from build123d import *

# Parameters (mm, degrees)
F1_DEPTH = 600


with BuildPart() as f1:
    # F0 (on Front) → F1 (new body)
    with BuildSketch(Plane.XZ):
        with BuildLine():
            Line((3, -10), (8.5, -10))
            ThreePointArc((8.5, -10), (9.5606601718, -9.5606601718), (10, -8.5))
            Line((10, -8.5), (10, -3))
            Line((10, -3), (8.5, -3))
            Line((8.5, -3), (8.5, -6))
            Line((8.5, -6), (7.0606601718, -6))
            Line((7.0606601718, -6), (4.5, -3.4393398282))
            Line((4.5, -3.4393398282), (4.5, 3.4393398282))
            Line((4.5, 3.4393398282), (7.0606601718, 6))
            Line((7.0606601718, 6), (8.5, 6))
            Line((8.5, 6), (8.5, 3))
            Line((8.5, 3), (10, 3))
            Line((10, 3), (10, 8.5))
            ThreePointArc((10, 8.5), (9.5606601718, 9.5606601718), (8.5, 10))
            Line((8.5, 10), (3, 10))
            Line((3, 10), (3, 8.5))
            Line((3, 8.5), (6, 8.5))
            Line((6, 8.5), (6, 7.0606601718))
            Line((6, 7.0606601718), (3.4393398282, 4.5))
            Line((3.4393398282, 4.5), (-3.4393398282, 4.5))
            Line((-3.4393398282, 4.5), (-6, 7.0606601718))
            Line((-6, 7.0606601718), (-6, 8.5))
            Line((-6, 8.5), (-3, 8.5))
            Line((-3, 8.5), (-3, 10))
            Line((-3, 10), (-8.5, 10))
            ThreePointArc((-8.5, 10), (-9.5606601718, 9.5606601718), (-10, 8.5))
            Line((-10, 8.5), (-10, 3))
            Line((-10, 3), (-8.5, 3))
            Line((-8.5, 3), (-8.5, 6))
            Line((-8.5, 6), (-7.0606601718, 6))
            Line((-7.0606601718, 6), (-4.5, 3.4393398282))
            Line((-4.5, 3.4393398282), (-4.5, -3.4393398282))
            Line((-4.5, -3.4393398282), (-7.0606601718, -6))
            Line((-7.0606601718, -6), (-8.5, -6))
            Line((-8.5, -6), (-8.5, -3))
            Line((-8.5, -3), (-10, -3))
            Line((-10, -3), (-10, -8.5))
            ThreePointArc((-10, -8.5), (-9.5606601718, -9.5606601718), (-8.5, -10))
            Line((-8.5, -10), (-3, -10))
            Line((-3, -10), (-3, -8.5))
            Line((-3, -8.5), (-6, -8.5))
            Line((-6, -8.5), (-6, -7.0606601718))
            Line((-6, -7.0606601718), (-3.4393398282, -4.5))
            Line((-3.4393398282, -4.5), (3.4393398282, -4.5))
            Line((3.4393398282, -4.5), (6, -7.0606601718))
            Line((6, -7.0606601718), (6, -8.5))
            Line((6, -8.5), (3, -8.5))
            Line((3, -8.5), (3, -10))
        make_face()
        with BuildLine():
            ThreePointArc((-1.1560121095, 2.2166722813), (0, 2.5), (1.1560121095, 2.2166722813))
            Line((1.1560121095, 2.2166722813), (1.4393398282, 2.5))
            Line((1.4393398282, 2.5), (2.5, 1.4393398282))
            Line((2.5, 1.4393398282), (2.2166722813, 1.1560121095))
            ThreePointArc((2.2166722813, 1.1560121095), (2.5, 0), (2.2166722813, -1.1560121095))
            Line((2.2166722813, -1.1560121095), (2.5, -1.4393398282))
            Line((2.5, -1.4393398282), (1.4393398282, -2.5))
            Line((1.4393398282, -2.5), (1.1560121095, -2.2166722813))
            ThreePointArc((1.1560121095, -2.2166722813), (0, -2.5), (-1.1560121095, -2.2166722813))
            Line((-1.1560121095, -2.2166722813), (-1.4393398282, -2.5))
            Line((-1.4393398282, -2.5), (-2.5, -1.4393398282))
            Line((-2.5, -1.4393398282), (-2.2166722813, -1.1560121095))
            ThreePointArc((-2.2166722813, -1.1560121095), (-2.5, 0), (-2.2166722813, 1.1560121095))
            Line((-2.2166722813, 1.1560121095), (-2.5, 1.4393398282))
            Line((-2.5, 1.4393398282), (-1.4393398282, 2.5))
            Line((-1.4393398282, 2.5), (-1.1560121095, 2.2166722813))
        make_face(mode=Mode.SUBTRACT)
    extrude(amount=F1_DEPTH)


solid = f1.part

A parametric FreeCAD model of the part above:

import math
import FreeCAD as App
import Part
import Sketcher
Q = App.Units.Quantity

doc = App.newDocument("Part")
body = doc.addObject("PartDesign::Body", "Body")

# Sketch on XZ plane
sketch1 = body.newObject("Sketcher::SketchObject", "Sketch")
sketch1.AttachmentSupport = (doc.getObject("XZ_Plane"), [""])
sketch1.MapMode = "FlatFace"
sketch1.addGeometry([
    Part.LineSegment(App.Vector(3, -10, 0), App.Vector(8.5, -10, 0)),  # 0
    Part.ArcOfCircle(Part.Circle(App.Vector(8.5, -8.5, 0), App.Vector(0, 0, 1), 1.5), math.radians(-90), math.radians(0)),  # 1
    Part.LineSegment(App.Vector(10, -8.5, 0), App.Vector(10, -3, 0)),  # 2
    Part.LineSegment(App.Vector(10, -3, 0), App.Vector(8.5, -3, 0)),  # 3
    Part.LineSegment(App.Vector(8.5, -3, 0), App.Vector(8.5, -6, 0)),  # 4
    Part.LineSegment(App.Vector(8.5, -6, 0), App.Vector(7.06, -6, 0)),  # 5
    Part.LineSegment(App.Vector(7.06, -6, 0), App.Vector(4.5, -3.44, 0)),  # 6
    Part.LineSegment(App.Vector(4.5, -3.44, 0), App.Vector(4.5, 3.44, 0)),  # 7
    Part.LineSegment(App.Vector(4.5, 3.44, 0), App.Vector(7.06, 6, 0)),  # 8
    Part.LineSegment(App.Vector(7.06, 6, 0), App.Vector(8.5, 6, 0)),  # 9
    Part.LineSegment(App.Vector(8.5, 6, 0), App.Vector(8.5, 3, 0)),  # 10
    Part.LineSegment(App.Vector(8.5, 3, 0), App.Vector(10, 3, 0)),  # 11
    Part.LineSegment(App.Vector(10, 3, 0), App.Vector(10, 8.5, 0)),  # 12
    Part.ArcOfCircle(Part.Circle(App.Vector(8.5, 8.5, 0), App.Vector(0, 0, 1), 1.5), math.radians(0), math.radians(90)),  # 13
    Part.LineSegment(App.Vector(8.5, 10, 0), App.Vector(3, 10, 0)),  # 14
    Part.LineSegment(App.Vector(3, 10, 0), App.Vector(3, 8.5, 0)),  # 15
    Part.LineSegment(App.Vector(3, 8.5, 0), App.Vector(6, 8.5, 0)),  # 16
    Part.LineSegment(App.Vector(6, 8.5, 0), App.Vector(6, 7.06, 0)),  # 17
    Part.LineSegment(App.Vector(6, 7.06, 0), App.Vector(3.44, 4.5, 0)),  # 18
    Part.LineSegment(App.Vector(3.44, 4.5, 0), App.Vector(-3.44, 4.5, 0)),  # 19
    Part.LineSegment(App.Vector(-3.44, 4.5, 0), App.Vector(-6, 7.06, 0)),  # 20
    Part.LineSegment(App.Vector(-6, 7.06, 0), App.Vector(-6, 8.5, 0)),  # 21
    Part.LineSegment(App.Vector(-6, 8.5, 0), App.Vector(-3, 8.5, 0)),  # 22
    Part.LineSegment(App.Vector(-3, 8.5, 0), App.Vector(-3, 10, 0)),  # 23
    Part.LineSegment(App.Vector(-3, 10, 0), App.Vector(-8.5, 10, 0)),  # 24
    Part.ArcOfCircle(Part.Circle(App.Vector(-8.5, 8.5, 0), App.Vector(0, 0, 1), 1.5), math.radians(90), math.radians(180)),  # 25
    Part.LineSegment(App.Vector(-10, 8.5, 0), App.Vector(-10, 3, 0)),  # 26
    Part.LineSegment(App.Vector(-10, 3, 0), App.Vector(-8.5, 3, 0)),  # 27
    Part.LineSegment(App.Vector(-8.5, 3, 0), App.Vector(-8.5, 6, 0)),  # 28
    Part.LineSegment(App.Vector(-8.5, 6, 0), App.Vector(-7.06, 6, 0)),  # 29
    Part.LineSegment(App.Vector(-7.06, 6, 0), App.Vector(-4.5, 3.44, 0)),  # 30
    Part.LineSegment(App.Vector(-4.5, 3.44, 0), App.Vector(-4.5, -3.44, 0)),  # 31
    Part.LineSegment(App.Vector(-4.5, -3.44, 0), App.Vector(-7.06, -6, 0)),  # 32
    Part.LineSegment(App.Vector(-7.06, -6, 0), App.Vector(-8.5, -6, 0)),  # 33
    Part.LineSegment(App.Vector(-8.5, -6, 0), App.Vector(-8.5, -3, 0)),  # 34
    Part.LineSegment(App.Vector(-8.5, -3, 0), App.Vector(-10, -3, 0)),  # 35
    Part.LineSegment(App.Vector(-10, -3, 0), App.Vector(-10, -8.5, 0)),  # 36
    Part.ArcOfCircle(Part.Circle(App.Vector(-8.5, -8.5, 0), App.Vector(0, 0, 1), 1.5), math.radians(180), math.radians(270)),  # 37
    Part.LineSegment(App.Vector(-8.5, -10, 0), App.Vector(-3, -10, 0)),  # 38
    Part.LineSegment(App.Vector(-3, -10, 0), App.Vector(-3, -8.5, 0)),  # 39
    Part.LineSegment(App.Vector(-3, -8.5, 0), App.Vector(-6, -8.5, 0)),  # 40
    Part.LineSegment(App.Vector(-6, -8.5, 0), App.Vector(-6, -7.06, 0)),  # 41
    Part.LineSegment(App.Vector(-6, -7.06, 0), App.Vector(-3.44, -4.5, 0)),  # 42
    Part.LineSegment(App.Vector(-3.44, -4.5, 0), App.Vector(3.44, -4.5, 0)),  # 43
    Part.LineSegment(App.Vector(3.44, -4.5, 0), App.Vector(6, -7.06, 0)),  # 44
    Part.LineSegment(App.Vector(6, -7.06, 0), App.Vector(6, -8.5, 0)),  # 45
    Part.LineSegment(App.Vector(6, -8.5, 0), App.Vector(3, -8.5, 0)),  # 46
    Part.LineSegment(App.Vector(3, -8.5, 0), App.Vector(3, -10, 0)),  # 47
    Part.LineSegment(App.Vector(-1.44, 2.5, 0), App.Vector(-1.16, 2.22, 0)),  # 48
    Part.ArcOfCircle(Part.Circle(App.Vector(0, 0, 0), App.Vector(0, 0, 1), 2.5), math.radians(62), math.radians(118)),  # 49
    Part.LineSegment(App.Vector(1.16, 2.22, 0), App.Vector(1.44, 2.5, 0)),  # 50
    Part.LineSegment(App.Vector(1.44, 2.5, 0), App.Vector(2.5, 1.44, 0)),  # 51
    Part.LineSegment(App.Vector(2.5, 1.44, 0), App.Vector(2.22, 1.16, 0)),  # 52
    Part.ArcOfCircle(Part.Circle(App.Vector(0, 0, 0), App.Vector(0, 0, 1), 2.5), math.radians(-28), math.radians(28)),  # 53
    Part.LineSegment(App.Vector(2.22, -1.16, 0), App.Vector(2.5, -1.44, 0)),  # 54
    Part.LineSegment(App.Vector(2.5, -1.44, 0), App.Vector(1.44, -2.5, 0)),  # 55
    Part.LineSegment(App.Vector(1.44, -2.5, 0), App.Vector(1.16, -2.22, 0)),  # 56
    Part.ArcOfCircle(Part.Circle(App.Vector(0, 0, 0), App.Vector(0, 0, 1), 2.5), math.radians(-118), math.radians(-62)),  # 57
    Part.LineSegment(App.Vector(-1.16, -2.22, 0), App.Vector(-1.44, -2.5, 0)),  # 58
    Part.LineSegment(App.Vector(-1.44, -2.5, 0), App.Vector(-2.5, -1.44, 0)),  # 59
    Part.LineSegment(App.Vector(-2.5, -1.44, 0), App.Vector(-2.22, -1.16, 0)),  # 60
    Part.ArcOfCircle(Part.Circle(App.Vector(0, 0, 0), App.Vector(0, 0, 1), 2.5), math.radians(152), math.radians(208)),  # 61
    Part.LineSegment(App.Vector(-2.22, 1.16, 0), App.Vector(-2.5, 1.44, 0)),  # 62
    Part.LineSegment(App.Vector(-2.5, 1.44, 0), App.Vector(-1.44, 2.5, 0)),  # 63
], False)
sketch1.addConstraint([
    Sketcher.Constraint("Tangent", 0, 2, 1, 1),
    Sketcher.Constraint("Tangent", 1, 2, 2, 1),
    Sketcher.Constraint("Coincident", 2, 2, 3, 1),
    Sketcher.Constraint("Coincident", 3, 2, 4, 1),
    Sketcher.Constraint("Coincident", 4, 2, 5, 1),
    Sketcher.Constraint("Coincident", 5, 2, 6, 1),
    Sketcher.Constraint("Coincident", 6, 2, 7, 1),
    Sketcher.Constraint("Coincident", 7, 2, 8, 1),
    Sketcher.Constraint("Coincident", 8, 2, 9, 1),
    Sketcher.Constraint("Coincident", 9, 2, 10, 1),
    Sketcher.Constraint("Coincident", 10, 2, 11, 1),
    Sketcher.Constraint("Coincident", 11, 2, 12, 1),
    Sketcher.Constraint("Tangent", 12, 2, 13, 1),
    Sketcher.Constraint("Tangent", 13, 2, 14, 1),
    Sketcher.Constraint("Coincident", 14, 2, 15, 1),
    Sketcher.Constraint("Coincident", 15, 2, 16, 1),
    Sketcher.Constraint("Coincident", 16, 2, 17, 1),
    Sketcher.Constraint("Coincident", 17, 2, 18, 1),
    Sketcher.Constraint("Coincident", 18, 2, 19, 1),
    Sketcher.Constraint("Coincident", 19, 2, 20, 1),
    Sketcher.Constraint("Coincident", 20, 2, 21, 1),
    Sketcher.Constraint("Coincident", 21, 2, 22, 1),
    Sketcher.Constraint("Coincident", 22, 2, 23, 1),
    Sketcher.Constraint("Coincident", 23, 2, 24, 1),
    Sketcher.Constraint("Tangent", 24, 2, 25, 1),
    Sketcher.Constraint("Tangent", 25, 2, 26, 1),
    Sketcher.Constraint("Coincident", 26, 2, 27, 1),
    Sketcher.Constraint("Coincident", 27, 2, 28, 1),
    Sketcher.Constraint("Coincident", 28, 2, 29, 1),
    Sketcher.Constraint("Coincident", 29, 2, 30, 1),
    Sketcher.Constraint("Coincident", 30, 2, 31, 1),
    Sketcher.Constraint("Coincident", 31, 2, 32, 1),
    Sketcher.Constraint("Coincident", 32, 2, 33, 1),
    Sketcher.Constraint("Coincident", 33, 2, 34, 1),
    Sketcher.Constraint("Coincident", 34, 2, 35, 1),
    Sketcher.Constraint("Coincident", 35, 2, 36, 1),
    Sketcher.Constraint("Tangent", 36, 2, 37, 1),
    Sketcher.Constraint("Tangent", 37, 2, 38, 1),
    Sketcher.Constraint("Coincident", 38, 2, 39, 1),
    Sketcher.Constraint("Coincident", 39, 2, 40, 1),
    Sketcher.Constraint("Coincident", 40, 2, 41, 1),
    Sketcher.Constraint("Coincident", 41, 2, 42, 1),
    Sketcher.Constraint("Coincident", 42, 2, 43, 1),
    Sketcher.Constraint("Coincident", 43, 2, 44, 1),
    Sketcher.Constraint("Coincident", 44, 2, 45, 1),
    Sketcher.Constraint("Coincident", 45, 2, 46, 1),
    Sketcher.Constraint("Coincident", 46, 2, 47, 1),
    Sketcher.Constraint("Coincident", 47, 2, 0, 1),
    Sketcher.Constraint("Coincident", 48, 2, 49, 2),
    Sketcher.Constraint("Coincident", 49, 1, 50, 1),
    Sketcher.Constraint("Coincident", 50, 2, 51, 1),
    Sketcher.Constraint("Coincident", 51, 2, 52, 1),
    Sketcher.Constraint("Coincident", 52, 2, 53, 2),
    Sketcher.Constraint("Coincident", 53, 1, 54, 1),
    Sketcher.Constraint("Coincident", 54, 2, 55, 1),
    Sketcher.Constraint("Coincident", 55, 2, 56, 1),
    Sketcher.Constraint("Coincident", 56, 2, 57, 2),
    Sketcher.Constraint("Coincident", 57, 1, 58, 1),
    Sketcher.Constraint("Coincident", 58, 2, 59, 1),
    Sketcher.Constraint("Coincident", 59, 2, 60, 1),
    Sketcher.Constraint("Coincident", 60, 2, 61, 2),
    Sketcher.Constraint("Coincident", 61, 1, 62, 1),
    Sketcher.Constraint("Coincident", 62, 2, 63, 1),
    Sketcher.Constraint("Coincident", 63, 2, 48, 1),
    Sketcher.Constraint("Horizontal", 0),
    Sketcher.Constraint("Vertical", 2),
    Sketcher.Constraint("Horizontal", 3),
    Sketcher.Constraint("Vertical", 4),
    Sketcher.Constraint("Horizontal", 5),
    Sketcher.Constraint("Vertical", 7),
    Sketcher.Constraint("Horizontal", 9),
    Sketcher.Constraint("Vertical", 10),
    Sketcher.Constraint("Horizontal", 11),
    Sketcher.Constraint("Vertical", 12),
    Sketcher.Constraint("Horizontal", 14),
    Sketcher.Constraint("Vertical", 15),
    Sketcher.Constraint("Horizontal", 16),
    Sketcher.Constraint("Vertical", 17),
    Sketcher.Constraint("Horizontal", 19),
    Sketcher.Constraint("Vertical", 21),
    Sketcher.Constraint("Horizontal", 22),
    Sketcher.Constraint("Vertical", 23),
    Sketcher.Constraint("Horizontal", 24),
    Sketcher.Constraint("Vertical", 26),
    Sketcher.Constraint("Horizontal", 27),
    Sketcher.Constraint("Vertical", 28),
    Sketcher.Constraint("Horizontal", 29),
    Sketcher.Constraint("Vertical", 31),
    Sketcher.Constraint("Horizontal", 33),
    Sketcher.Constraint("Vertical", 34),
    Sketcher.Constraint("Horizontal", 35),
    Sketcher.Constraint("Vertical", 36),
    Sketcher.Constraint("Horizontal", 38),
    Sketcher.Constraint("Vertical", 39),
    Sketcher.Constraint("Horizontal", 40),
    Sketcher.Constraint("Vertical", 41),
    Sketcher.Constraint("Horizontal", 43),
    Sketcher.Constraint("Vertical", 45),
    Sketcher.Constraint("Horizontal", 46),
    Sketcher.Constraint("Vertical", 47),
    Sketcher.Constraint("Coincident", 49, 3, -1, 1),
    Sketcher.Constraint("Coincident", 53, 3, -1, 1),
    Sketcher.Constraint("Coincident", 57, 3, -1, 1),
    Sketcher.Constraint("Coincident", 61, 3, -1, 1),
    Sketcher.Constraint("Equal", 1, 13),
    Sketcher.Constraint("Equal", 13, 25),
    Sketcher.Constraint("Equal", 25, 37),
    Sketcher.Constraint("Equal", 49, 53),
    Sketcher.Constraint("Equal", 53, 57),
    Sketcher.Constraint("Equal", 57, 61),
    Sketcher.Constraint("Symmetric", 1, 3, 25, 3, -1, 1),
    Sketcher.Constraint("Symmetric", 13, 3, 37, 3, -1, 1),
    Sketcher.Constraint("Symmetric", 3, 2, 27, 2, -1, 1),
    Sketcher.Constraint("Symmetric", 5, 2, 29, 2, -1, 1),
    Sketcher.Constraint("Symmetric", 6, 2, 30, 2, -1, 1),
    Sketcher.Constraint("Symmetric", 8, 2, 32, 2, -1, 1),
    Sketcher.Constraint("Symmetric", 10, 2, 34, 2, -1, 1),
    Sketcher.Constraint("Symmetric", 15, 2, 39, 2, -1, 1),
    Sketcher.Constraint("Symmetric", 17, 2, 41, 2, -1, 1),
    Sketcher.Constraint("Symmetric", 18, 2, 42, 2, -1, 1),
    Sketcher.Constraint("Symmetric", 20, 2, 44, 2, -1, 1),
    Sketcher.Constraint("Symmetric", 22, 2, 46, 2, -1, 1),
    Sketcher.Constraint("Symmetric", 50, 2, 58, 2, -1, 1),
    Sketcher.Constraint("Symmetric", 51, 2, 59, 2, -1, 1),
    Sketcher.Constraint("Symmetric", 54, 2, 62, 2, -1, 1),
    Sketcher.Constraint("Symmetric", 55, 2, 63, 2, -1, 1),
    Sketcher.Constraint("Symmetric", 13, 3, 25, 3, -2),
    Sketcher.Constraint("Symmetric", 17, 2, 20, 2, -2),
    Sketcher.Constraint("Symmetric", 15, 2, 22, 2, -2),
    Sketcher.Constraint("Symmetric", 10, 2, 27, 2, -2),
    Sketcher.Constraint("Symmetric", 8, 2, 29, 2, -2),
    Sketcher.Constraint("Symmetric", 55, 2, 58, 2, -2),
    Sketcher.Constraint("Symmetric", 54, 2, 59, 2, -2),
    Sketcher.Constraint("Perpendicular", 6, 8),
    Sketcher.Constraint("Parallel", 8, 18),
    Sketcher.Constraint("Perpendicular", 18, 20),
    Sketcher.Constraint("Perpendicular", 30, 32),
    Sketcher.Constraint("Perpendicular", 42, 44),
    Sketcher.Constraint("Parallel", 44, 48),
    Sketcher.Constraint("Perpendicular", 48, 50),
    Sketcher.Constraint("Perpendicular", 50, 51),
    Sketcher.Constraint("Perpendicular", 51, 52),
    Sketcher.Constraint("Perpendicular", 52, 54),
    Sketcher.Constraint("Perpendicular", 54, 55),
    Sketcher.Constraint("Perpendicular", 55, 56),
    Sketcher.Constraint("Perpendicular", 56, 58),
    Sketcher.Constraint("Perpendicular", 59, 60),
    Sketcher.Constraint("Perpendicular", 60, 62),
    Sketcher.Constraint("Horizontal", 12, 2, 15, 2),
    Sketcher.Constraint("Vertical", 0, 2, 3, 2),
    Sketcher.Constraint("Equal", 38, 2),
    Sketcher.Constraint("Equal", 46, 4),
    Sketcher.Constraint("Equal", 43, 7),
    Sketcher.Constraint("Equal", 33, 17),
    Sketcher.Constraint("Equal", 8, 18),
    Sketcher.Constraint("Equal", 50, 52),
    Sketcher.Constraint("Radius", 1, Q("1.5 mm")),
    Sketcher.Constraint("Radius", 49, Q("2.5 mm")),
    Sketcher.Constraint("DistanceX", 16, 1, 16, 2, Q("3 mm")),
    Sketcher.Constraint("DistanceX", 0, 1, 0, 2, Q("5.5 mm")),
    Sketcher.Constraint("DistanceY", 0, 2, -1, 1, Q("10 mm")),
    Sketcher.Constraint("Distance", 51, Q("1.5 mm")),
    Sketcher.Constraint("DistanceX", -1, 1, 6, 2, Q("4.5 mm")),
    Sketcher.Constraint("DistanceY", -1, 1, 50, 2, Q("2.5 mm")),
    Sketcher.Constraint("DistanceX", 5, 2, 5, 1, Q("1.43934 mm")),
])
pad1 = body.newObject("PartDesign::Pad", "Pad")
pad1.Profile = sketch1
pad1.Length = 600

doc.recompute()
